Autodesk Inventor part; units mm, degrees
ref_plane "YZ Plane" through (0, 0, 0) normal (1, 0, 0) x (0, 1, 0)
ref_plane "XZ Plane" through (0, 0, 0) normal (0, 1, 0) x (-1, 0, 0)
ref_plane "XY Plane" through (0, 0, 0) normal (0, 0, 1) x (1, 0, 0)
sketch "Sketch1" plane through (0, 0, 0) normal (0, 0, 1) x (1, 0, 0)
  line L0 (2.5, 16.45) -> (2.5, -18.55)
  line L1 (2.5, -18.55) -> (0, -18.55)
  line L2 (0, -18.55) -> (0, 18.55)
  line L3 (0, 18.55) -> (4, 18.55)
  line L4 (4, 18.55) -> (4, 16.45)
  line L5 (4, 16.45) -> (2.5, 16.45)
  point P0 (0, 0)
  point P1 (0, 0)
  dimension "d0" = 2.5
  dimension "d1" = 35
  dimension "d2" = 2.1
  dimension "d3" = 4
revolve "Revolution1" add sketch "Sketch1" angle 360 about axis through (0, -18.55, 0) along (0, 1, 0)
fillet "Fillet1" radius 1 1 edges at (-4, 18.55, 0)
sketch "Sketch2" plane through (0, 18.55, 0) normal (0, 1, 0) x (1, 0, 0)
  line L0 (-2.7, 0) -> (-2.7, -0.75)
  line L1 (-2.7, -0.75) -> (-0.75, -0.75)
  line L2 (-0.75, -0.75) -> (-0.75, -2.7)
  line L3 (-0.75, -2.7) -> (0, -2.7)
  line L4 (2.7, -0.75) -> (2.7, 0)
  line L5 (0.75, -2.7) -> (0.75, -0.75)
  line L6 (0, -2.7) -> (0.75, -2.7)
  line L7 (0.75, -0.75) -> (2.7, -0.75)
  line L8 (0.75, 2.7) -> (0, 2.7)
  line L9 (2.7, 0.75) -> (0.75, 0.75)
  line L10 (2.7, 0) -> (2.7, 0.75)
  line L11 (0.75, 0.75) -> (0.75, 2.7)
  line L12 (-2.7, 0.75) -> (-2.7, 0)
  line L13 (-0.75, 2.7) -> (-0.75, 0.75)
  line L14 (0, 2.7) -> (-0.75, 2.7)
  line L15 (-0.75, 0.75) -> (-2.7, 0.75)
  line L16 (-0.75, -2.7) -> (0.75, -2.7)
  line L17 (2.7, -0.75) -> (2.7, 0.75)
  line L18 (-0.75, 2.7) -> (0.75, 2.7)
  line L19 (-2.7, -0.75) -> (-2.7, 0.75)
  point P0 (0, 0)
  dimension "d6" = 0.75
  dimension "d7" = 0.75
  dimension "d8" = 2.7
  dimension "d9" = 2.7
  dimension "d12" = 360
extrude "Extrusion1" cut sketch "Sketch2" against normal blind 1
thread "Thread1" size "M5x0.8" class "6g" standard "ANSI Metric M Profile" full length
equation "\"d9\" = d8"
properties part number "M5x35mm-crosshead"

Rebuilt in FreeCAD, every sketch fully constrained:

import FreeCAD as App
import Part
import Sketcher
from FreeCAD import Vector


def edges_at(feature, points):
    """Names of the edges that pass closest to the given points."""
    edges = feature.Shape.Edges
    near = lambda p: min(range(len(edges)), key=lambda i: edges[i].distToShape(Part.Vertex(*p))[0])
    return sorted({f"Edge{near(p) + 1}" for p in points})


def add_polygon(sketch, points):
    """Adds a closed chain of lines whose ends are joined by coincident constraints."""
    first, n = sketch.GeometryCount, len(points)
    for a, b in zip(points, points[1:] + points[:1]):
        sketch.addGeometry(Part.LineSegment(App.Vector(*a, 0), App.Vector(*b, 0)), False)
    for i in range(n):
        sketch.addConstraint(Sketcher.Constraint("Coincident", first + i, 2, first + (i + 1) % n, 1))

doc = App.newDocument("Part")
params = doc.addObject("Spreadsheet::Sheet", "Params")
for row, (alias, value) in enumerate([
    ("sketch1_width", "4 mm"),
    ("sketch1_height", "35 mm"),
    ("sketch1_width2", "2.5 mm"),
    ("sketch1_height2", "2.1 mm"),
    ("revolution_angle", "360 deg"),
    ("fillet_radius", "1 mm"),
    ("pocket1_length", "1 mm"),
], start=1):
    params.set(f"A{row}", alias)
    params.set(f"B{row}", "=" + value)
    params.setAlias(f"B{row}", alias)

body = doc.addObject("PartDesign::Body", "Body")

# Sketch on XY plane
sketch1 = doc.addObject("Sketcher::SketchObject", "Sketch")
body.addObject(sketch1)
sketch1.AttachmentSupport = (doc.XY_Plane, [""])
sketch1.MapMode = "FlatFace"
add_polygon(sketch1, [(2.5, -18.6), (2.5, 16.4), (4, 16.4), (4, 18.6), (0, 18.6), (0, -18.6)])  # lines 0-5
sketch1.addConstraint(Sketcher.Constraint("Vertical", 0))
sketch1.addConstraint(Sketcher.Constraint("Horizontal", 1))
sketch1.addConstraint(Sketcher.Constraint("Vertical", 2))
sketch1.addConstraint(Sketcher.Constraint("Horizontal", 3))
sketch1.addConstraint(Sketcher.Constraint("Vertical", 4))
sketch1.addConstraint(Sketcher.Constraint("Horizontal", 5))
sketch1.addConstraint(Sketcher.Constraint("Symmetric", 3, 2, 4, 2, -1, 1))
sketch1.addConstraint(Sketcher.Constraint("DistanceX", 3, 2, 3, 1, 4.0))
sketch1.addConstraint(Sketcher.Constraint("DistanceY", 0, 1, 0, 2, 35.0))
sketch1.addConstraint(Sketcher.Constraint("DistanceX", 5, 1, 5, 2, 2.5))
sketch1.addConstraint(Sketcher.Constraint("DistanceY", 2, 1, 2, 2, 2.1))
sketch1.setExpression("Constraints[13]", "Params.sketch1_width")
sketch1.setExpression("Constraints[14]", "Params.sketch1_height")
sketch1.setExpression("Constraints[15]", "Params.sketch1_width2")
sketch1.setExpression("Constraints[16]", "Params.sketch1_height2")
revolution = doc.addObject("PartDesign::Revolution", "Revolution")
body.addObject(revolution)
revolution.Profile = sketch1
revolution.ReferenceAxis = (sketch1, ["V_Axis"])
revolution.setExpression("Angle", "Params.revolution_angle")
doc.recompute()

fillet = doc.addObject("PartDesign::Fillet", "Fillet")
body.addObject(fillet)
fillet.Base = (revolution, edges_at(revolution, [(-4, 18.55, 0)]))
fillet.setExpression("Radius", "Params.fillet_radius")

# Sketch on XZ plane
sketch2 = doc.addObject("Sketcher::SketchObject", "Sketch001")
body.addObject(sketch2)
sketch2.AttachmentSupport = (doc.XZ_Plane, [""])
sketch2.MapMode = "FlatFace"
sketch2.AttachmentOffset = App.Placement(Vector(0, 0, -18.55), App.Rotation())
add_polygon(sketch2, [(-2.7, -0.8), (-2.7, 0.8), (-0.8, 0.8), (-0.8, 2.7), (0.8, 2.7), (0.8, 0.8), (2.7, 0.8), (2.7, -0.8), (0.8, -0.8), (0.8, -2.7), (-0.8, -2.7), (-0.8, -0.8)])  # lines 0-11
sketch2.addConstraint(Sketcher.Constraint("Vertical", 0))
sketch2.addConstraint(Sketcher.Constraint("Horizontal", 1))
sketch2.addConstraint(Sketcher.Constraint("Vertical", 2))
sketch2.addConstraint(Sketcher.Constraint("Horizontal", 3))
sketch2.addConstraint(Sketcher.Constraint("Vertical", 4))
sketch2.addConstraint(Sketcher.Constraint("Horizontal", 5))
sketch2.addConstraint(Sketcher.Constraint("Vertical", 6))
sketch2.addConstraint(Sketcher.Constraint("Horizontal", 7))
sketch2.addConstraint(Sketcher.Constraint("Vertical", 8))
sketch2.addConstraint(Sketcher.Constraint("Horizontal", 9))
sketch2.addConstraint(Sketcher.Constraint("Vertical", 10))
sketch2.addConstraint(Sketcher.Constraint("Horizontal", 11))
sketch2.addConstraint(Sketcher.Constraint("Symmetric", 0, 2, 6, 2, -1, 1))
sketch2.addConstraint(Sketcher.Constraint("Symmetric", 2, 2, 8, 2, -1, 1))
sketch2.addConstraint(Sketcher.Constraint("Symmetric", 4, 2, 10, 2, -1, 1))
sketch2.addConstraint(Sketcher.Constraint("Symmetric", 1, 2, 4, 2, -2))
sketch2.addConstraint(Sketcher.Constraint("Equal", 9, 0))
sketch2.addConstraint(Sketcher.Constraint("Equal", 11, 2))
sketch2.addConstraint(Sketcher.Constraint("DistanceX", 0, 2, -1, 1, 2.7))
sketch2.addConstraint(Sketcher.Constraint("DistanceY", -1, 1, 0, 2, 0.75))
pocket1 = doc.addObject("PartDesign::Pocket", "Pocket")
body.addObject(pocket1)
pocket1.Profile = sketch2
pocket1.setExpression("Length", "Params.pocket1_length")
pocket1.Reversed = True

doc.recompute()
